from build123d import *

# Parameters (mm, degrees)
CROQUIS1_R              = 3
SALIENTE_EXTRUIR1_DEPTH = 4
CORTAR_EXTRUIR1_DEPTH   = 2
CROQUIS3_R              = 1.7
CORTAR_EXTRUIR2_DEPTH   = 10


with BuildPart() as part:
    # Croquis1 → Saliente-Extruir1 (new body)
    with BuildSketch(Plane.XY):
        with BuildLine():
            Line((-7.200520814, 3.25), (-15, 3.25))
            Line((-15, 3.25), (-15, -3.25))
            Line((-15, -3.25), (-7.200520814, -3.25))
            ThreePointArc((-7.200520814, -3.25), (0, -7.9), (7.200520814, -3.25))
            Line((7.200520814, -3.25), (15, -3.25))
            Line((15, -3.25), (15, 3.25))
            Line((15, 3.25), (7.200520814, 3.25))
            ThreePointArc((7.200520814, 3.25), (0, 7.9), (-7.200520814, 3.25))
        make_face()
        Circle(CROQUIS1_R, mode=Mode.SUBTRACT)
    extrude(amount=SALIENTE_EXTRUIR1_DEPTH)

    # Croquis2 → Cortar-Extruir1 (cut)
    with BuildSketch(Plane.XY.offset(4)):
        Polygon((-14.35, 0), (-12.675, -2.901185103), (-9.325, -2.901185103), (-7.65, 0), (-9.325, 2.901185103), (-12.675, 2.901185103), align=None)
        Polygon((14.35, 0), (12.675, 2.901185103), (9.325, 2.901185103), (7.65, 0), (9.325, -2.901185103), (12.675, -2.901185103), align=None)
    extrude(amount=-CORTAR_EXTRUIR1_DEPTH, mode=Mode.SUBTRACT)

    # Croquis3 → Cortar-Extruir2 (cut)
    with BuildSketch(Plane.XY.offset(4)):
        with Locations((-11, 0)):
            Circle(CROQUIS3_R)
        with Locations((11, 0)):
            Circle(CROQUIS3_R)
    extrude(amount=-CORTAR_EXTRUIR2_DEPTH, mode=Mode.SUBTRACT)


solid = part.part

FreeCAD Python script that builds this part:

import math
import FreeCAD as App
import Part
import Sketcher
from FreeCAD import Vector
Q = App.Units.Quantity

doc = App.newDocument("Part")
params = doc.addObject("Spreadsheet::Sheet", "Params")
for row, (alias, value) in enumerate([
    ("sketch1_diameter", "6 mm"),
    ("sketch1_radius", "7.9 mm"),
    ("sketch1_height", "6.5 mm"),
    ("pad1_length", "4 mm"),
    ("sketch2_width", "3.35 mm"),
    ("pocket1_length", "2 mm"),
    ("sketch3_diameter", "3.4 mm"),
    ("pocket2_length", "10 mm"),
], start=1):
    params.set(f"A{row}", alias)
    params.set(f"B{row}", "=" + value)
    params.setAlias(f"B{row}", alias)

body = doc.addObject("PartDesign::Body", "Body")

# Sketch on XY plane
sketch1 = doc.addObject("Sketcher::SketchObject", "Sketch")
body.addObject(sketch1)
sketch1.AttachmentSupport = (doc.XY_Plane, [""])
sketch1.MapMode = "FlatFace"
sketch1.addGeometry(Part.LineSegment(Vector(-7.200521, 3.25, 0), Vector(-15, 3.25, 0)), False)
sketch1.addGeometry(Part.LineSegment(Vector(-15, 3.25, 0), Vector(-15, -3.25, 0)), False)
sketch1.addGeometry(Part.LineSegment(Vector(-15, -3.25, 0), Vector(-7.200521, -3.25, 0)), False)
sketch1.addGeometry(Part.ArcOfCircle(Part.Circle(Vector(0, 0, 0), Vector(0, 0, 1), 7.9), math.radians(-155.707666), math.radians(-24.292334)), False)
sketch1.addGeometry(Part.LineSegment(Vector(7.200521, -3.25, 0), Vector(15, -3.25, 0)), False)
sketch1.addGeometry(Part.LineSegment(Vector(15, -3.25, 0), Vector(15, 3.25, 0)), False)
sketch1.addGeometry(Part.LineSegment(Vector(15, 3.25, 0), Vector(7.200521, 3.25, 0)), False)
sketch1.addGeometry(Part.ArcOfCircle(Part.Circle(Vector(0, 0, 0), Vector(0, 0, 1), 7.9), math.radians(24.292334), math.radians(155.707666)), False)
sketch1.addGeometry(Part.Circle(Vector(0, 0, 0), Vector(0, 0, 1), 3), False)
sketch1.addConstraint(Sketcher.Constraint("Coincident", 0, 2, 1, 1))
sketch1.addConstraint(Sketcher.Constraint("Coincident", 1, 2, 2, 1))
sketch1.addConstraint(Sketcher.Constraint("Coincident", 2, 2, 3, 1))
sketch1.addConstraint(Sketcher.Constraint("Coincident", 3, 2, 4, 1))
sketch1.addConstraint(Sketcher.Constraint("Coincident", 4, 2, 5, 1))
sketch1.addConstraint(Sketcher.Constraint("Coincident", 5, 2, 6, 1))
sketch1.addConstraint(Sketcher.Constraint("Coincident", 6, 2, 7, 1))
sketch1.addConstraint(Sketcher.Constraint("Coincident", 7, 2, 0, 1))
sketch1.addConstraint(Sketcher.Constraint("Horizontal", 0))
sketch1.addConstraint(Sketcher.Constraint("Vertical", 1))
sketch1.addConstraint(Sketcher.Constraint("Horizontal", 2))
sketch1.addConstraint(Sketcher.Constraint("Horizontal", 4))
sketch1.addConstraint(Sketcher.Constraint("Vertical", 5))
sketch1.addConstraint(Sketcher.Constraint("Horizontal", 6))
sketch1.addConstraint(Sketcher.Constraint("Coincident", 3, 3, -1, 1))
sketch1.addConstraint(Sketcher.Constraint("Coincident", 7, 3, -1, 1))
sketch1.addConstraint(Sketcher.Constraint("Coincident", 8, 3, -1, 1))
sketch1.addConstraint(Sketcher.Constraint("Equal", 3, 7))
sketch1.addConstraint(Sketcher.Constraint("Symmetric", 0, 2, 4, 2, -1, 1))
sketch1.addConstraint(Sketcher.Constraint("Horizontal", 2, 2, 3, 2))
sketch1.addConstraint(Sketcher.Constraint("Horizontal", 0, 2, 5, 2))
sketch1.addConstraint(Sketcher.Constraint("Diameter", 8, Q("6 mm")))
sketch1.addConstraint(Sketcher.Constraint("Radius", 3, Q("7.9 mm")))
sketch1.addConstraint(Sketcher.Constraint("DistanceY", 1, 2, 1, 1, Q("6.5 mm")))
sketch1.addConstraint(Sketcher.Constraint("DistanceX", 0, 2, -1, 1, Q("15 mm")))
sketch1.setExpression("Constraints[21]", "Params.sketch1_diameter")
sketch1.setExpression("Constraints[22]", "Params.sketch1_radius")
sketch1.setExpression("Constraints[23]", "Params.sketch1_height")
pad1 = doc.addObject("PartDesign::Pad", "Pad")
body.addObject(pad1)
pad1.Profile = sketch1
pad1.setExpression("Length", "Params.pad1_length")

# Sketch on XY plane
sketch2 = doc.addObject("Sketcher::SketchObject", "Sketch001")
body.addObject(sketch2)
sketch2.AttachmentSupport = (doc.XY_Plane, [""])
sketch2.MapMode = "FlatFace"
sketch2.AttachmentOffset = App.Placement(Vector(0, 0, 4), App.Rotation())
sketch2.addGeometry(Part.LineSegment(Vector(-14.35, 0, 0), Vector(-12.675, -2.901185, 0)), False)
sketch2.addGeometry(Part.LineSegment(Vector(-12.675, -2.901185, 0), Vector(-9.325, -2.901185, 0)), False)
sketch2.addGeometry(Part.LineSegment(Vector(-9.325, -2.901185, 0), Vector(-7.65, 0, 0)), False)
sketch2.addGeometry(Part.LineSegment(Vector(-7.65, 0, 0), Vector(-9.325, 2.901185, 0)), False)
sketch2.addGeometry(Part.LineSegment(Vector(-9.325, 2.901185, 0), Vector(-12.675, 2.901185, 0)), False)
sketch2.addGeometry(Part.LineSegment(Vector(-12.675, 2.901185, 0), Vector(-14.35, 0, 0)), False)
sketch2.addGeometry(Part.LineSegment(Vector(14.35, 0, 0), Vector(12.675, 2.901185, 0)), False)
sketch2.addGeometry(Part.LineSegment(Vector(12.675, 2.901185, 0), Vector(9.325, 2.901185, 0)), False)
sketch2.addGeometry(Part.LineSegment(Vector(9.325, 2.901185, 0), Vector(7.65, 0, 0)), False)
sketch2.addGeometry(Part.LineSegment(Vector(7.65, 0, 0), Vector(9.325, -2.901185, 0)), False)
sketch2.addGeometry(Part.LineSegment(Vector(9.325, -2.901185, 0), Vector(12.675, -2.901185, 0)), False)
sketch2.addGeometry(Part.LineSegment(Vector(12.675, -2.901185, 0), Vector(14.35, 0, 0)), False)
sketch2.addConstraint(Sketcher.Constraint("Coincident", 0, 2, 1, 1))
sketch2.addConstraint(Sketcher.Constraint("Coincident", 1, 2, 2, 1))
sketch2.addConstraint(Sketcher.Constraint("Coincident", 2, 2, 3, 1))
sketch2.addConstraint(Sketcher.Constraint("Coincident", 3, 2, 4, 1))
sketch2.addConstraint(Sketcher.Constraint("Coincident", 4, 2, 5, 1))
sketch2.addConstraint(Sketcher.Constraint("Coincident", 5, 2, 0, 1))
sketch2.addConstraint(Sketcher.Constraint("Coincident", 6, 2, 7, 1))
sketch2.addConstraint(Sketcher.Constraint("Coincident", 7, 2, 8, 1))
sketch2.addConstraint(Sketcher.Constraint("Coincident", 8, 2, 9, 1))
sketch2.addConstraint(Sketcher.Constraint("Coincident", 9, 2, 10, 1))
sketch2.addConstraint(Sketcher.Constraint("Coincident", 10, 2, 11, 1))
sketch2.addConstraint(Sketcher.Constraint("Coincident", 11, 2, 6, 1))
sketch2.addConstraint(Sketcher.Constraint("Horizontal", 1))
sketch2.addConstraint(Sketcher.Constraint("Horizontal", 4))
sketch2.addConstraint(Sketcher.Constraint("Horizontal", 7))
sketch2.addConstraint(Sketcher.Constraint("Horizontal", 10))
sketch2.addConstraint(Sketcher.Constraint("Symmetric", 0, 2, 6, 2, -1, 1))
sketch2.addConstraint(Sketcher.Constraint("Symmetric", 2, 2, 8, 2, -1, 1))
sketch2.addConstraint(Sketcher.Constraint("Symmetric", 3, 2, 9, 2, -1, 1))
sketch2.addConstraint(Sketcher.Constraint("Symmetric", 5, 2, 11, 2, -1, 1))
sketch2.addConstraint(Sketcher.Constraint("Symmetric", 4, 2, 6, 2, -2))
sketch2.addConstraint(Sketcher.Constraint("PointOnObject", 2, 2, -1))
sketch2.addConstraint(Sketcher.Constraint("PointOnObject", 5, 2, -1))
sketch2.addConstraint(Sketcher.Constraint("Parallel", 0, 3))
sketch2.addConstraint(Sketcher.Constraint("Parallel", 2, 5))
sketch2.addConstraint(Sketcher.Constraint("Parallel", 5, 8))
sketch2.addConstraint(Sketcher.Constraint("Parallel", 8, 11))
sketch2.addConstraint(Sketcher.Constraint("Angle", 0, Q("-60 deg")))
sketch2.addConstraint(Sketcher.Constraint("DistanceX", 3, 2, 6, 2, Q("22 mm")))
sketch2.addConstraint(Sketcher.Constraint("DistanceX", 1, 1, 1, 2, Q("3.35 mm")))
sketch2.addConstraint(Sketcher.Constraint("DistanceX", 5, 2, 2, 2, Q("6.7 mm")))
sketch2.setExpression("Constraints[29]", "Params.sketch2_width")
pocket1 = doc.addObject("PartDesign::Pocket", "Pocket")
body.addObject(pocket1)
pocket1.Profile = sketch2
pocket1.setExpression("Length", "Params.pocket1_length")

# Sketch on XY plane
sketch3 = doc.addObject("Sketcher::SketchObject", "Sketch002")
body.addObject(sketch3)
sketch3.AttachmentSupport = (doc.XY_Plane, [""])
sketch3.MapMode = "FlatFace"
sketch3.AttachmentOffset = App.Placement(Vector(0, 0, 4), App.Rotation())
sketch3.addGeometry(Part.Circle(Vector(-11, 0, 0), Vector(0, 0, 1), 1.7), False)
sketch3.addGeometry(Part.Circle(Vector(11, 0, 0), Vector(0, 0, 1), 1.7), False)
sketch3.addConstraint(Sketcher.Constraint("Equal", 0, 1))
sketch3.addConstraint(Sketcher.Constraint("Symmetric", 0, 3, 1, 3, -1, 1))
sketch3.addConstraint(Sketcher.Constraint("PointOnObject", 0, 3, -1))
sketch3.addConstraint(Sketcher.Constraint("Diameter", 0, Q("3.4 mm")))
sketch3.addConstraint(Sketcher.Constraint("DistanceX", 0, 3, -1, 1, Q("11 mm")))
sketch3.setExpression("Constraints[3]", "Params.sketch3_diameter")
pocket2 = doc.addObject("PartDesign::Pocket", "Pocket001")
body.addObject(pocket2)
pocket2.Profile = sketch3
pocket2.setExpression("Length", "Params.pocket2_length")

doc.recompute()
